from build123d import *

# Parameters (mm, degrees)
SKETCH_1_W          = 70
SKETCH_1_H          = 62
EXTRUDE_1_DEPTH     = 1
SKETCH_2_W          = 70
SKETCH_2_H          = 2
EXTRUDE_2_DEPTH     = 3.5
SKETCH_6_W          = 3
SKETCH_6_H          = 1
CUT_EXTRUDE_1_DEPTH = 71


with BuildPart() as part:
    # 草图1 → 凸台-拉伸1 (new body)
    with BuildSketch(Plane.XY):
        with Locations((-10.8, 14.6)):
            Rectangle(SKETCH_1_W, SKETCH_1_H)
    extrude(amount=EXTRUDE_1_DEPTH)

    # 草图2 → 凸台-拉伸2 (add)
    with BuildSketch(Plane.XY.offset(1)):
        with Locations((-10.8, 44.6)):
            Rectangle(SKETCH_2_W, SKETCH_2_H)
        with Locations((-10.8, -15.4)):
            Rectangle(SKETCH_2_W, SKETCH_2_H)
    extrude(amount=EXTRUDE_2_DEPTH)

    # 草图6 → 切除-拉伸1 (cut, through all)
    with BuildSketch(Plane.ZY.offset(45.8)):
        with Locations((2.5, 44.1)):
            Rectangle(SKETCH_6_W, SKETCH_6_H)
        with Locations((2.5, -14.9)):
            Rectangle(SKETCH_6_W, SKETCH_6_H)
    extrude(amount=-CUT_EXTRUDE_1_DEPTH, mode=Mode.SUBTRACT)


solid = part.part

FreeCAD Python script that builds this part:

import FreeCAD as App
import Part
import Sketcher

V = App.Vector

doc = App.newDocument("Part")
body = doc.addObject("PartDesign::Body", "Body")

# Sketch on XY plane
sketch1 = body.newObject("Sketcher::SketchObject", "Sketch")
sketch1.AttachmentSupport = (doc.getObject("XY_Plane"), [""])
sketch1.MapMode = "FlatFace"
sketch1.addGeometry([
    Part.LineSegment(V(-46, 46, 0), V(-46, -16, 0)),
    Part.LineSegment(V(-46, -16, 0), V(24, -16, 0)),
    Part.LineSegment(V(24, -16, 0), V(24, 46, 0)),
    Part.LineSegment(V(24, 46, 0), V(-46, 46, 0)),
], False)
sketch1.addConstraint([
    Sketcher.Constraint("Coincident", 0, 2, 1, 1),
    Sketcher.Constraint("Coincident", 1, 2, 2, 1),
    Sketcher.Constraint("Coincident", 2, 2, 3, 1),
    Sketcher.Constraint("Coincident", 3, 2, 0, 1),
    Sketcher.Constraint("Vertical", 0),
    Sketcher.Constraint("Horizontal", 1),
    Sketcher.Constraint("Vertical", 2),
    Sketcher.Constraint("Horizontal", 3),
    Sketcher.Constraint("DistanceX", 1, 1, 1, 2, 70.0),
    Sketcher.Constraint("DistanceY", 0, 2, 0, 1, 62.0),
    Sketcher.Constraint("DistanceX", 0, 2, -1, 1, 45.8),
    Sketcher.Constraint("DistanceY", 0, 2, -1, 1, 16.4),
])
pad1 = body.newObject("PartDesign::Pad", "Pad")
pad1.Profile = sketch1
pad1.Length = 1

# Sketch on XY plane
sketch2 = body.newObject("Sketcher::SketchObject", "Sketch001")
sketch2.AttachmentSupport = (doc.getObject("XY_Plane"), [""])
sketch2.MapMode = "FlatFace"
sketch2.AttachmentOffset = App.Placement(V(0, 0, 1), App.Rotation())
sketch2.addGeometry([
    Part.LineSegment(V(-45.8, 45.6, 0), V(-45.8, 43.6, 0)),  # 0
    Part.LineSegment(V(-45.8, 43.6, 0), V(24.2, 43.6, 0)),  # 1
    Part.LineSegment(V(24.2, 43.6, 0), V(24.2, 45.6, 0)),  # 2
    Part.LineSegment(V(24.2, 45.6, 0), V(-45.8, 45.6, 0)),  # 3
    Part.LineSegment(V(-45.8, -14.4, 0), V(-45.8, -16.4, 0)),  # 4
    Part.LineSegment(V(-45.8, -16.4, 0), V(24.2, -16.4, 0)),  # 5
    Part.LineSegment(V(24.2, -16.4, 0), V(24.2, -14.4, 0)),  # 6
    Part.LineSegment(V(24.2, -14.4, 0), V(-45.8, -14.4, 0)),  # 7
], False)
sketch2.addConstraint([
    Sketcher.Constraint("Coincident", 0, 2, 1, 1),
    Sketcher.Constraint("Coincident", 1, 2, 2, 1),
    Sketcher.Constraint("Coincident", 2, 2, 3, 1),
    Sketcher.Constraint("Coincident", 3, 2, 0, 1),
    Sketcher.Constraint("Coincident", 4, 2, 5, 1),
    Sketcher.Constraint("Coincident", 5, 2, 6, 1),
    Sketcher.Constraint("Coincident", 6, 2, 7, 1),
    Sketcher.Constraint("Coincident", 7, 2, 4, 1),
    Sketcher.Constraint("Vertical", 0),
    Sketcher.Constraint("Horizontal", 1),
    Sketcher.Constraint("Vertical", 2),
    Sketcher.Constraint("Horizontal", 3),
    Sketcher.Constraint("Vertical", 4),
    Sketcher.Constraint("Horizontal", 5),
    Sketcher.Constraint("Vertical", 6),
    Sketcher.Constraint("Horizontal", 7),
    Sketcher.Constraint("Vertical", 3, 2, 4, 2),
    Sketcher.Constraint("Vertical", 2, 2, 5, 2),
    Sketcher.Constraint("Equal", 2, 4),
    Sketcher.Constraint("DistanceX", 1, 1, 1, 2, 70.0),
    Sketcher.Constraint("DistanceY", 0, 2, 0, 1, 2.0),
    Sketcher.Constraint("DistanceY", 4, 2, 0, 2, 60.0),
    Sketcher.Constraint("DistanceX", 0, 2, -1, 1, 45.8),
    Sketcher.Constraint("DistanceY", -1, 1, 0, 2, 43.6),
])
pad2 = body.newObject("PartDesign::Pad", "Pad001")
pad2.Profile = sketch2
pad2.Length = 3.5

# Sketch on YZ plane
sketch3 = body.newObject("Sketcher::SketchObject", "Sketch002")
sketch3.AttachmentSupport = (doc.getObject("YZ_Plane"), [""])
sketch3.MapMode = "FlatFace"
sketch3.AttachmentOffset = App.Placement(V(0, 0, -45.8), App.Rotation())
sketch3.addGeometry([
    Part.LineSegment(V(44.6, 1, 0), V(43.6, 1, 0)),  # 0
    Part.LineSegment(V(43.6, 1, 0), V(43.6, 4, 0)),  # 1
    Part.LineSegment(V(43.6, 4, 0), V(44.6, 4, 0)),  # 2
    Part.LineSegment(V(44.6, 4, 0), V(44.6, 1, 0)),  # 3
    Part.LineSegment(V(-14.4, 1, 0), V(-15.4, 1, 0)),  # 4
    Part.LineSegment(V(-15.4, 1, 0), V(-15.4, 4, 0)),  # 5
    Part.LineSegment(V(-15.4, 4, 0), V(-14.4, 4, 0)),  # 6
    Part.LineSegment(V(-14.4, 4, 0), V(-14.4, 1, 0)),  # 7
], False)
sketch3.addConstraint([
    Sketcher.Constraint("Coincident", 0, 2, 1, 1),
    Sketcher.Constraint("Coincident", 1, 2, 2, 1),
    Sketcher.Constraint("Coincident", 2, 2, 3, 1),
    Sketcher.Constraint("Coincident", 3, 2, 0, 1),
    Sketcher.Constraint("Coincident", 4, 2, 5, 1),
    Sketcher.Constraint("Coincident", 5, 2, 6, 1),
    Sketcher.Constraint("Coincident", 6, 2, 7, 1),
    Sketcher.Constraint("Coincident", 7, 2, 4, 1),
    Sketcher.Constraint("Horizontal", 0),
    Sketcher.Constraint("Vertical", 1),
    Sketcher.Constraint("Horizontal", 2),
    Sketcher.Constraint("Vertical", 3),
    Sketcher.Constraint("Horizontal", 4),
    Sketcher.Constraint("Vertical", 5),
    Sketcher.Constraint("Horizontal", 6),
    Sketcher.Constraint("Vertical", 7),
    Sketcher.Constraint("Horizontal", 3, 2, 4, 2),
    Sketcher.Constraint("Horizontal", 2, 2, 5, 2),
    Sketcher.Constraint("Equal", 2, 4),
    Sketcher.Constraint("DistanceX", 0, 2, 0, 1, 1.0),
    Sketcher.Constraint("DistanceY", 1, 1, 1, 2, 3.0),
    Sketcher.Constraint("DistanceY", -1, 1, 0, 2, 1.0),
    Sketcher.Constraint("DistanceX", 4, 2, 0, 2, 59.0),
    Sketcher.Constraint("DistanceX", -1, 1, 0, 2, 43.6),
])
pocket1 = body.newObject("PartDesign::Pocket", "Pocket")
pocket1.Profile = sketch3
pocket1.Type = "ThroughAll"
pocket1.Reversed = True

doc.recompute()
